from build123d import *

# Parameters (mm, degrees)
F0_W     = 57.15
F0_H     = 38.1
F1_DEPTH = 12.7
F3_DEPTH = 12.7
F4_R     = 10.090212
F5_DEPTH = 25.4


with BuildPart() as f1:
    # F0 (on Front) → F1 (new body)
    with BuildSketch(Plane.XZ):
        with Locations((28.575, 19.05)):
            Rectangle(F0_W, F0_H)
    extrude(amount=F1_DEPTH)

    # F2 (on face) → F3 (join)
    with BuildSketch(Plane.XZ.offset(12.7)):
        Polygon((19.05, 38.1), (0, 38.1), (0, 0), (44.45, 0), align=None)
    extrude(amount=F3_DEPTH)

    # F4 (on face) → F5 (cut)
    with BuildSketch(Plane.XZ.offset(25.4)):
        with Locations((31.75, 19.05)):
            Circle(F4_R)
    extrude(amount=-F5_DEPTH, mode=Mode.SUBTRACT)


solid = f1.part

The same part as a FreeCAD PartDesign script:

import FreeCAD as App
import Part
import Sketcher
from FreeCAD import Vector
Q = App.Units.Quantity

doc = App.newDocument("Part")
body = doc.addObject("PartDesign::Body", "Body")

sketch1 = body.newObject("Sketcher::SketchObject", "Sketch")
sketch1.AttachmentSupport = (doc.getObject("XZ_Plane"), [""])
sketch1.MapMode = "FlatFace"
sketch1.addGeometry(Part.LineSegment(Vector(0, 38, 0), Vector(0, 0, 0)), False)
sketch1.addGeometry(Part.LineSegment(Vector(0, 0, 0), Vector(57, 0, 0)), False)
sketch1.addGeometry(Part.LineSegment(Vector(57, 0, 0), Vector(57, 38, 0)), False)
sketch1.addGeometry(Part.LineSegment(Vector(57, 38, 0), Vector(0, 38, 0)), False)
sketch1.addConstraint(Sketcher.Constraint("Coincident", 0, 2, 1, 1))
sketch1.addConstraint(Sketcher.Constraint("Coincident", 1, 2, 2, 1))
sketch1.addConstraint(Sketcher.Constraint("Coincident", 2, 2, 3, 1))
sketch1.addConstraint(Sketcher.Constraint("Coincident", 3, 2, 0, 1))
sketch1.addConstraint(Sketcher.Constraint("Vertical", 0))
sketch1.addConstraint(Sketcher.Constraint("Horizontal", 1))
sketch1.addConstraint(Sketcher.Constraint("Vertical", 2))
sketch1.addConstraint(Sketcher.Constraint("Horizontal", 3))
sketch1.addConstraint(Sketcher.Constraint("Coincident", 0, 2, -1, 1))
sketch1.addConstraint(Sketcher.Constraint("DistanceY", 0, 2, 0, 1, Q("1.5 in")))
sketch1.addConstraint(Sketcher.Constraint("DistanceX", 1, 1, 1, 2, Q("2.25 in")))
pad1 = body.newObject("PartDesign::Pad", "Pad")
pad1.Profile = sketch1
pad1.Length = Q("0.5 in")

sketch2 = body.newObject("Sketcher::SketchObject", "Sketch001")
sketch2.AttachmentSupport = (doc.getObject("XZ_Plane"), [""])
sketch2.MapMode = "FlatFace"
sketch2.AttachmentOffset = App.Placement(Vector(0, 0, 0.5 * 25.4), App.Rotation())
sketch2.addGeometry(Part.LineSegment(Vector(19, 38, 0), Vector(0, 38, 0)), False)
sketch2.addGeometry(Part.LineSegment(Vector(0, 38, 0), Vector(0, 0, 0)), False)
sketch2.addGeometry(Part.LineSegment(Vector(0, 0, 0), Vector(44, 0, 0)), False)
sketch2.addGeometry(Part.LineSegment(Vector(44, 0, 0), Vector(19, 38, 0)), False)
sketch2.addConstraint(Sketcher.Constraint("Coincident", 0, 2, 1, 1))
sketch2.addConstraint(Sketcher.Constraint("Coincident", 1, 2, 2, 1))
sketch2.addConstraint(Sketcher.Constraint("Coincident", 2, 2, 3, 1))
sketch2.addConstraint(Sketcher.Constraint("Coincident", 3, 2, 0, 1))
sketch2.addConstraint(Sketcher.Constraint("Horizontal", 0))
sketch2.addConstraint(Sketcher.Constraint("Vertical", 1))
sketch2.addConstraint(Sketcher.Constraint("Horizontal", 2))
sketch2.addConstraint(Sketcher.Constraint("Coincident", 1, 2, -1, 1))
sketch2.addConstraint(Sketcher.Constraint("DistanceY", 1, 2, 1, 1, Q("1.5 in")))
sketch2.addConstraint(Sketcher.Constraint("DistanceX", 3, 2, 2, 2, Q("1 in")))
sketch2.addConstraint(Sketcher.Constraint("DistanceX", 0, 2, 0, 1, Q("0.75 in")))
pad2 = body.newObject("PartDesign::Pad", "Pad001")
pad2.Profile = sketch2
pad2.Length = Q("0.5 in")

sketch3 = body.newObject("Sketcher::SketchObject", "Sketch002")
sketch3.AttachmentSupport = (doc.getObject("XZ_Plane"), [""])
sketch3.MapMode = "FlatFace"
sketch3.AttachmentOffset = App.Placement(Vector(0, 0, 1 * 25.4), App.Rotation())
sketch3.addGeometry(Part.Circle(Vector(32, 19, 0), Vector(0, 0, 1), 10), False)
sketch3.addConstraint(Sketcher.Constraint("DistanceX", -1, 1, 0, 3, Q("1.25 in")))
sketch3.addConstraint(Sketcher.Constraint("DistanceY", -1, 1, 0, 3, Q("0.75 in")))
sketch3.addConstraint(Sketcher.Constraint("Diameter", 0, 20.180424))
pocket1 = body.newObject("PartDesign::Pocket", "Pocket")
pocket1.Profile = sketch3
pocket1.Length = Q("1 in")

doc.recompute()
